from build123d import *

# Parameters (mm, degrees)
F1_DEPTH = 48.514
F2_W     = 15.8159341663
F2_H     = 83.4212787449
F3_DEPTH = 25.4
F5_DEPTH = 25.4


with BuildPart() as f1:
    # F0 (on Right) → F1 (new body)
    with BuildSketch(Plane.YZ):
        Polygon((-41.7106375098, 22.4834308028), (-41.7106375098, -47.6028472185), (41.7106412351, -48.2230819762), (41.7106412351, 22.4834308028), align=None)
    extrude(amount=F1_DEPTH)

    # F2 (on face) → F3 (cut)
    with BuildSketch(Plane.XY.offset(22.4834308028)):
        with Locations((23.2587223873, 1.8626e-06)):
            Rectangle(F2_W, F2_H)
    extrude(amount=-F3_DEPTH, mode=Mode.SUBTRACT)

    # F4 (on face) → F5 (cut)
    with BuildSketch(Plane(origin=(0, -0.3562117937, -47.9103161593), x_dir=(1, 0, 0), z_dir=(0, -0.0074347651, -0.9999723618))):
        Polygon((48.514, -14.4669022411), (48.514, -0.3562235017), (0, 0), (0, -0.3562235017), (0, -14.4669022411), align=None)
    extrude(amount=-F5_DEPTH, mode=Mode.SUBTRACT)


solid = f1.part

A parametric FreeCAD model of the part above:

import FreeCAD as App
import Part
import Sketcher
Q = App.Units.Quantity


def add_polygon(sketch, points):
    """Adds a closed chain of lines whose ends are joined by coincident constraints."""
    first, n = sketch.GeometryCount, len(points)
    for a, b in zip(points, points[1:] + points[:1]):
        sketch.addGeometry(Part.LineSegment(App.Vector(*a, 0), App.Vector(*b, 0)), False)
    for i in range(n):
        sketch.addConstraint(Sketcher.Constraint("Coincident", first + i, 2, first + (i + 1) % n, 1))

doc = App.newDocument("Part")
params = doc.addObject("Spreadsheet::Sheet", "Params")
for row, (alias, value) in enumerate([
    ("pad1_length", "1.91 in"),
    ("pocket1_length", "1 in"),
    ("sketch3_width", "1.91 in"),
    ("pocket2_length", "1 in"),
], start=1):
    params.set(f"A{row}", alias)
    params.set(f"B{row}", "=" + value)
    params.setAlias(f"B{row}", alias)

body = doc.addObject("PartDesign::Body", "Body")

# Sketch on YZ plane
sketch1 = body.newObject("Sketcher::SketchObject", "Sketch")
sketch1.AttachmentSupport = (doc.getObject("YZ_Plane"), [""])
sketch1.MapMode = "FlatFace"
add_polygon(sketch1, [(-41.710638, 22.483431), (-41.710638, -47.602847), (41.710641, -48.223082), (41.710641, 22.483431)])  # lines 0-3
sketch1.addConstraint([
    Sketcher.Constraint("Vertical", 0),
    Sketcher.Constraint("Vertical", 2),
    Sketcher.Constraint("Horizontal", 3),
    Sketcher.Constraint("DistanceX", 3, 2, 3, 1, Q("83.421279 mm")),
    Sketcher.Constraint("DistanceY", 0, 2, 0, 1, Q("70.086278 mm")),
    Sketcher.Constraint("DistanceY", 2, 1, 2, 2, Q("70.706513 mm")),
    Sketcher.Constraint("DistanceX", -1, 1, 1, 2, Q("41.710641 mm")),
    Sketcher.Constraint("DistanceY", 1, 2, -1, 1, Q("48.223082 mm")),
])
pad1 = body.newObject("PartDesign::Pad", "Pad")
pad1.Profile = sketch1
pad1.setExpression("Length", "Params.pad1_length")

# Sketch on XY plane
sketch2 = body.newObject("Sketcher::SketchObject", "Sketch001")
sketch2.AttachmentSupport = (doc.getObject("XY_Plane"), [""])
sketch2.MapMode = "FlatFace"
sketch2.AttachmentOffset = App.Placement(App.Vector(0, 0, 22.483431), App.Rotation())
add_polygon(sketch2, [(15.350755, 41.710641), (15.350755, -41.710638), (31.166689, -41.710638), (31.166689, 41.710641)])  # lines 0-3
sketch2.addConstraint([
    Sketcher.Constraint("Vertical", 0),
    Sketcher.Constraint("Horizontal", 1),
    Sketcher.Constraint("Vertical", 2),
    Sketcher.Constraint("Horizontal", 3),
    Sketcher.Constraint("DistanceY", 0, 2, 0, 1, Q("83.421279 mm")),
    Sketcher.Constraint("DistanceX", 1, 1, 1, 2, Q("15.815934 mm")),
    Sketcher.Constraint("DistanceX", -1, 1, 1, 2, Q("31.166689 mm")),
    Sketcher.Constraint("DistanceY", -1, 1, 2, 2, Q("41.710641 mm")),
])
pocket1 = body.newObject("PartDesign::Pocket", "Pocket")
pocket1.Profile = sketch2
pocket1.setExpression("Length", "Params.pocket1_length")

# Sketch on an angled plane
sketch3 = body.newObject("Sketcher::SketchObject", "Sketch002")
sketch3.Placement = App.Placement(App.Vector(0, -0.356212, -47.910316), App.Rotation(App.Vector(1, 0, 0), App.Vector(0, -0.999972362, 0.007434765), App.Vector(0, -0.007434765, -0.999972362), "ZXY"))
add_polygon(sketch3, [(48.514, -14.466902), (48.514, -0.356224), (0, 0), (0, -14.466902)])  # lines 0-3
sketch3.addConstraint([
    Sketcher.Constraint("Vertical", 0),
    Sketcher.Constraint("Vertical", 2),
    Sketcher.Constraint("Horizontal", 3),
    Sketcher.Constraint("Coincident", 1, 2, -1, 1),
    Sketcher.Constraint("DistanceX", 3, 1, 3, 2, Q("1.91 in")),
    Sketcher.Constraint("DistanceY", 0, 1, 0, 2, Q("14.110679 mm")),
    Sketcher.Constraint("DistanceY", 2, 2, 2, 1, Q("14.466902 mm")),
])
sketch3.setExpression("Constraints[8]", "Params.sketch3_width")
pocket2 = body.newObject("PartDesign::Pocket", "Pocket001")
pocket2.Profile = sketch3
pocket2.setExpression("Length", "Params.pocket2_length")

doc.recompute()
